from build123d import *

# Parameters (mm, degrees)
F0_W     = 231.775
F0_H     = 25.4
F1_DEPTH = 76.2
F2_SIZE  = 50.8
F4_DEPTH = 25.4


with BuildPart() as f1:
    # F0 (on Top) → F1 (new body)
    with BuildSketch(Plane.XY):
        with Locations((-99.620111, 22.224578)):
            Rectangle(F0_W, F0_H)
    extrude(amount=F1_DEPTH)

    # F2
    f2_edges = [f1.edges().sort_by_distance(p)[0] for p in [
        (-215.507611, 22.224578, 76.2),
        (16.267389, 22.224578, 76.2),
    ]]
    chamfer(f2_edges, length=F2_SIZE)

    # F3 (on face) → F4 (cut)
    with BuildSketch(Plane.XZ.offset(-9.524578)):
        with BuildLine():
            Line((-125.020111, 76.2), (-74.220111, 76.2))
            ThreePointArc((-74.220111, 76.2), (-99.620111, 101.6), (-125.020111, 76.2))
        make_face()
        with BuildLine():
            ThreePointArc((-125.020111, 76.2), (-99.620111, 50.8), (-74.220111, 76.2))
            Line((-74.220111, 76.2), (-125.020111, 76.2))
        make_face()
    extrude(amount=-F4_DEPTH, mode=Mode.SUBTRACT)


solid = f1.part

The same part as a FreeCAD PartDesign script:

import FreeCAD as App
import Part
import Sketcher
Q = App.Units.Quantity


def edges_at(feature, points):
    """Names of the edges that pass closest to the given points."""
    edges = feature.Shape.Edges
    near = lambda p: min(range(len(edges)), key=lambda i: edges[i].distToShape(Part.Vertex(*p))[0])
    return sorted({f"Edge{near(p) + 1}" for p in points})


def add_polygon(sketch, points):
    """Adds a closed chain of lines whose ends are joined by coincident constraints."""
    first, n = sketch.GeometryCount, len(points)
    for a, b in zip(points, points[1:] + points[:1]):
        sketch.addGeometry(Part.LineSegment(App.Vector(*a, 0), App.Vector(*b, 0)), False)
    for i in range(n):
        sketch.addConstraint(Sketcher.Constraint("Coincident", first + i, 2, first + (i + 1) % n, 1))

doc = App.newDocument("Part")
body = doc.addObject("PartDesign::Body", "Body")

sketch1 = body.newObject("Sketcher::SketchObject", "Sketch")
sketch1.AttachmentSupport = (doc.getObject("XY_Plane"), [""])
sketch1.MapMode = "FlatFace"
add_polygon(sketch1, [(-215.507611, 34.924578), (-215.507611, 9.524578), (16.267389, 9.524578), (16.267389, 34.924578)])
sketch1.addConstraint(Sketcher.Constraint("Vertical", 0))
sketch1.addConstraint(Sketcher.Constraint("Horizontal", 1))
sketch1.addConstraint(Sketcher.Constraint("Vertical", 2))
sketch1.addConstraint(Sketcher.Constraint("Horizontal", 3))
sketch1.addConstraint(Sketcher.Constraint("DistanceY", 0, 2, 0, 1, Q("1 in")))
sketch1.addConstraint(Sketcher.Constraint("DistanceX", 1, 1, 1, 2, Q("9.125 in")))
sketch1.addConstraint(Sketcher.Constraint("DistanceX", 0, 2, -1, 1, 215.507611))
sketch1.addConstraint(Sketcher.Constraint("DistanceY", -1, 1, 0, 2, 9.524578))
pad1 = body.newObject("PartDesign::Pad", "Pad")
pad1.Profile = sketch1
pad1.Length = Q("3 in")
doc.recompute()

chamfer = body.newObject("PartDesign::Chamfer", "Chamfer")
chamfer.Base = (pad1, edges_at(pad1, [(-215.508, 22.225, 76.2), (16.267, 22.225, 76.2)]))
chamfer.Size = Q("2 in")

sketch2 = body.newObject("Sketcher::SketchObject", "Sketch001")
sketch2.AttachmentSupport = (doc.getObject("XZ_Plane"), [""])
sketch2.MapMode = "FlatFace"
sketch2.AttachmentOffset = App.Placement(App.Vector(0, 0, -9.524578), App.Rotation())
sketch2.addGeometry(Part.Circle(App.Vector(-99.620111, 76.2, 0), App.Vector(0, 0, 1), 25.4), False)
sketch2.addConstraint(Sketcher.Constraint("Diameter", 0, Q("2 in")))
sketch2.addConstraint(Sketcher.Constraint("DistanceY", -1, 1, 0, 3, Q("3 in")))
sketch2.addConstraint(Sketcher.Constraint("DistanceX", 0, 3, -1, 1, 99.620111))
pocket1 = body.newObject("PartDesign::Pocket", "Pocket")
pocket1.Profile = sketch2
pocket1.Length = Q("1 in")

doc.recompute()
